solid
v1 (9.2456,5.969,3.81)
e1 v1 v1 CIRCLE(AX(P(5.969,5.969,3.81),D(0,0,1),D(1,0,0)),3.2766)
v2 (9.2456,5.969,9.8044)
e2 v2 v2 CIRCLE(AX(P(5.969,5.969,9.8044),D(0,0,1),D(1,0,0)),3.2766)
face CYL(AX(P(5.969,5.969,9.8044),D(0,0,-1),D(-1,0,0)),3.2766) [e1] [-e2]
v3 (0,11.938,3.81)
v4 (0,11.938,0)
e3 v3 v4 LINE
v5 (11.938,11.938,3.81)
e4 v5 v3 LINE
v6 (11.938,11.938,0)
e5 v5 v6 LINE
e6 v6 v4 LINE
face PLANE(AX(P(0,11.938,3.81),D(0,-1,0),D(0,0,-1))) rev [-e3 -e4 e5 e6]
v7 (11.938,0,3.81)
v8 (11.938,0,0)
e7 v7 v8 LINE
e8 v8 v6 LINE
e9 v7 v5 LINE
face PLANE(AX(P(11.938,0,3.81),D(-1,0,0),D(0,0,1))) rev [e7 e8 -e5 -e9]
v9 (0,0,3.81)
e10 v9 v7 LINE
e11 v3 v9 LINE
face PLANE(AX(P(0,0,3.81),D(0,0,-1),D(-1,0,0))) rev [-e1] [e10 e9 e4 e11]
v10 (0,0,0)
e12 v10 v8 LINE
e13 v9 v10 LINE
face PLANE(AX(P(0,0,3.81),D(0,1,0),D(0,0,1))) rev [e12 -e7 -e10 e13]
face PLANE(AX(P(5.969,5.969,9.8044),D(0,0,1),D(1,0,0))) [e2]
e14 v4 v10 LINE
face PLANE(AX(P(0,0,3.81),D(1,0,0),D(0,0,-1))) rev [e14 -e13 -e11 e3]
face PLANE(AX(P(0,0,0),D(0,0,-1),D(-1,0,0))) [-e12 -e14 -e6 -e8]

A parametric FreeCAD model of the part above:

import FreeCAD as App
import Part
import Sketcher

V = App.Vector
Q = App.Units.Quantity


def add_polygon(sketch, points):
    """Adds a closed chain of lines whose ends are joined by coincident constraints."""
    first, n = sketch.GeometryCount, len(points)
    for a, b in zip(points, points[1:] + points[:1]):
        sketch.addGeometry(Part.LineSegment(App.Vector(*a, 0), App.Vector(*b, 0)), False)
    for i in range(n):
        sketch.addConstraint(Sketcher.Constraint("Coincident", first + i, 2, first + (i + 1) % n, 1))

doc = App.newDocument("Part")
body = doc.addObject("PartDesign::Body", "Body")

sketch1 = body.newObject("Sketcher::SketchObject", "Sketch")
sketch1.AttachmentSupport = (doc.getObject("XY_Plane"), [""])
sketch1.MapMode = "FlatFace"
add_polygon(sketch1, [(0, 12), (0, 0), (12, 0), (12, 12)])
sketch1.addConstraint([
    Sketcher.Constraint("Vertical", 0),
    Sketcher.Constraint("Horizontal", 1),
    Sketcher.Constraint("Vertical", 2),
    Sketcher.Constraint("Horizontal", 3),
    Sketcher.Constraint("Coincident", 0, 2, -1, 1),
    Sketcher.Constraint("Equal", 3, 0),
    Sketcher.Constraint("DistanceX", 1, 1, 1, 2, Q("0.47 in")),
])
pad1 = body.newObject("PartDesign::Pad", "Pad")
pad1.Profile = sketch1
pad1.Length = Q("0.15 in")

sketch2 = body.newObject("Sketcher::SketchObject", "Sketch001")
sketch2.AttachmentSupport = (doc.getObject("XY_Plane"), [""])
sketch2.MapMode = "FlatFace"
sketch2.AttachmentOffset = App.Placement(V(0, 0, 0.15 * 25.4), App.Rotation())
sketch2.addGeometry(Part.Circle(V(6, 6, 0), V(0, 0, 1), 3.3), False)
sketch2.addConstraint([
    Sketcher.Constraint("Diameter", 0, Q("0.258 in")),
    Sketcher.Constraint("DistanceX", -1, 1, 0, 3, Q("0.235 in")),
    Sketcher.Constraint("DistanceY", -1, 1, 0, 3, Q("0.235 in")),
])
pad2 = body.newObject("PartDesign::Pad", "Pad001")
pad2.Profile = sketch2
pad2.Length = Q("0.236 in")

doc.recompute()
